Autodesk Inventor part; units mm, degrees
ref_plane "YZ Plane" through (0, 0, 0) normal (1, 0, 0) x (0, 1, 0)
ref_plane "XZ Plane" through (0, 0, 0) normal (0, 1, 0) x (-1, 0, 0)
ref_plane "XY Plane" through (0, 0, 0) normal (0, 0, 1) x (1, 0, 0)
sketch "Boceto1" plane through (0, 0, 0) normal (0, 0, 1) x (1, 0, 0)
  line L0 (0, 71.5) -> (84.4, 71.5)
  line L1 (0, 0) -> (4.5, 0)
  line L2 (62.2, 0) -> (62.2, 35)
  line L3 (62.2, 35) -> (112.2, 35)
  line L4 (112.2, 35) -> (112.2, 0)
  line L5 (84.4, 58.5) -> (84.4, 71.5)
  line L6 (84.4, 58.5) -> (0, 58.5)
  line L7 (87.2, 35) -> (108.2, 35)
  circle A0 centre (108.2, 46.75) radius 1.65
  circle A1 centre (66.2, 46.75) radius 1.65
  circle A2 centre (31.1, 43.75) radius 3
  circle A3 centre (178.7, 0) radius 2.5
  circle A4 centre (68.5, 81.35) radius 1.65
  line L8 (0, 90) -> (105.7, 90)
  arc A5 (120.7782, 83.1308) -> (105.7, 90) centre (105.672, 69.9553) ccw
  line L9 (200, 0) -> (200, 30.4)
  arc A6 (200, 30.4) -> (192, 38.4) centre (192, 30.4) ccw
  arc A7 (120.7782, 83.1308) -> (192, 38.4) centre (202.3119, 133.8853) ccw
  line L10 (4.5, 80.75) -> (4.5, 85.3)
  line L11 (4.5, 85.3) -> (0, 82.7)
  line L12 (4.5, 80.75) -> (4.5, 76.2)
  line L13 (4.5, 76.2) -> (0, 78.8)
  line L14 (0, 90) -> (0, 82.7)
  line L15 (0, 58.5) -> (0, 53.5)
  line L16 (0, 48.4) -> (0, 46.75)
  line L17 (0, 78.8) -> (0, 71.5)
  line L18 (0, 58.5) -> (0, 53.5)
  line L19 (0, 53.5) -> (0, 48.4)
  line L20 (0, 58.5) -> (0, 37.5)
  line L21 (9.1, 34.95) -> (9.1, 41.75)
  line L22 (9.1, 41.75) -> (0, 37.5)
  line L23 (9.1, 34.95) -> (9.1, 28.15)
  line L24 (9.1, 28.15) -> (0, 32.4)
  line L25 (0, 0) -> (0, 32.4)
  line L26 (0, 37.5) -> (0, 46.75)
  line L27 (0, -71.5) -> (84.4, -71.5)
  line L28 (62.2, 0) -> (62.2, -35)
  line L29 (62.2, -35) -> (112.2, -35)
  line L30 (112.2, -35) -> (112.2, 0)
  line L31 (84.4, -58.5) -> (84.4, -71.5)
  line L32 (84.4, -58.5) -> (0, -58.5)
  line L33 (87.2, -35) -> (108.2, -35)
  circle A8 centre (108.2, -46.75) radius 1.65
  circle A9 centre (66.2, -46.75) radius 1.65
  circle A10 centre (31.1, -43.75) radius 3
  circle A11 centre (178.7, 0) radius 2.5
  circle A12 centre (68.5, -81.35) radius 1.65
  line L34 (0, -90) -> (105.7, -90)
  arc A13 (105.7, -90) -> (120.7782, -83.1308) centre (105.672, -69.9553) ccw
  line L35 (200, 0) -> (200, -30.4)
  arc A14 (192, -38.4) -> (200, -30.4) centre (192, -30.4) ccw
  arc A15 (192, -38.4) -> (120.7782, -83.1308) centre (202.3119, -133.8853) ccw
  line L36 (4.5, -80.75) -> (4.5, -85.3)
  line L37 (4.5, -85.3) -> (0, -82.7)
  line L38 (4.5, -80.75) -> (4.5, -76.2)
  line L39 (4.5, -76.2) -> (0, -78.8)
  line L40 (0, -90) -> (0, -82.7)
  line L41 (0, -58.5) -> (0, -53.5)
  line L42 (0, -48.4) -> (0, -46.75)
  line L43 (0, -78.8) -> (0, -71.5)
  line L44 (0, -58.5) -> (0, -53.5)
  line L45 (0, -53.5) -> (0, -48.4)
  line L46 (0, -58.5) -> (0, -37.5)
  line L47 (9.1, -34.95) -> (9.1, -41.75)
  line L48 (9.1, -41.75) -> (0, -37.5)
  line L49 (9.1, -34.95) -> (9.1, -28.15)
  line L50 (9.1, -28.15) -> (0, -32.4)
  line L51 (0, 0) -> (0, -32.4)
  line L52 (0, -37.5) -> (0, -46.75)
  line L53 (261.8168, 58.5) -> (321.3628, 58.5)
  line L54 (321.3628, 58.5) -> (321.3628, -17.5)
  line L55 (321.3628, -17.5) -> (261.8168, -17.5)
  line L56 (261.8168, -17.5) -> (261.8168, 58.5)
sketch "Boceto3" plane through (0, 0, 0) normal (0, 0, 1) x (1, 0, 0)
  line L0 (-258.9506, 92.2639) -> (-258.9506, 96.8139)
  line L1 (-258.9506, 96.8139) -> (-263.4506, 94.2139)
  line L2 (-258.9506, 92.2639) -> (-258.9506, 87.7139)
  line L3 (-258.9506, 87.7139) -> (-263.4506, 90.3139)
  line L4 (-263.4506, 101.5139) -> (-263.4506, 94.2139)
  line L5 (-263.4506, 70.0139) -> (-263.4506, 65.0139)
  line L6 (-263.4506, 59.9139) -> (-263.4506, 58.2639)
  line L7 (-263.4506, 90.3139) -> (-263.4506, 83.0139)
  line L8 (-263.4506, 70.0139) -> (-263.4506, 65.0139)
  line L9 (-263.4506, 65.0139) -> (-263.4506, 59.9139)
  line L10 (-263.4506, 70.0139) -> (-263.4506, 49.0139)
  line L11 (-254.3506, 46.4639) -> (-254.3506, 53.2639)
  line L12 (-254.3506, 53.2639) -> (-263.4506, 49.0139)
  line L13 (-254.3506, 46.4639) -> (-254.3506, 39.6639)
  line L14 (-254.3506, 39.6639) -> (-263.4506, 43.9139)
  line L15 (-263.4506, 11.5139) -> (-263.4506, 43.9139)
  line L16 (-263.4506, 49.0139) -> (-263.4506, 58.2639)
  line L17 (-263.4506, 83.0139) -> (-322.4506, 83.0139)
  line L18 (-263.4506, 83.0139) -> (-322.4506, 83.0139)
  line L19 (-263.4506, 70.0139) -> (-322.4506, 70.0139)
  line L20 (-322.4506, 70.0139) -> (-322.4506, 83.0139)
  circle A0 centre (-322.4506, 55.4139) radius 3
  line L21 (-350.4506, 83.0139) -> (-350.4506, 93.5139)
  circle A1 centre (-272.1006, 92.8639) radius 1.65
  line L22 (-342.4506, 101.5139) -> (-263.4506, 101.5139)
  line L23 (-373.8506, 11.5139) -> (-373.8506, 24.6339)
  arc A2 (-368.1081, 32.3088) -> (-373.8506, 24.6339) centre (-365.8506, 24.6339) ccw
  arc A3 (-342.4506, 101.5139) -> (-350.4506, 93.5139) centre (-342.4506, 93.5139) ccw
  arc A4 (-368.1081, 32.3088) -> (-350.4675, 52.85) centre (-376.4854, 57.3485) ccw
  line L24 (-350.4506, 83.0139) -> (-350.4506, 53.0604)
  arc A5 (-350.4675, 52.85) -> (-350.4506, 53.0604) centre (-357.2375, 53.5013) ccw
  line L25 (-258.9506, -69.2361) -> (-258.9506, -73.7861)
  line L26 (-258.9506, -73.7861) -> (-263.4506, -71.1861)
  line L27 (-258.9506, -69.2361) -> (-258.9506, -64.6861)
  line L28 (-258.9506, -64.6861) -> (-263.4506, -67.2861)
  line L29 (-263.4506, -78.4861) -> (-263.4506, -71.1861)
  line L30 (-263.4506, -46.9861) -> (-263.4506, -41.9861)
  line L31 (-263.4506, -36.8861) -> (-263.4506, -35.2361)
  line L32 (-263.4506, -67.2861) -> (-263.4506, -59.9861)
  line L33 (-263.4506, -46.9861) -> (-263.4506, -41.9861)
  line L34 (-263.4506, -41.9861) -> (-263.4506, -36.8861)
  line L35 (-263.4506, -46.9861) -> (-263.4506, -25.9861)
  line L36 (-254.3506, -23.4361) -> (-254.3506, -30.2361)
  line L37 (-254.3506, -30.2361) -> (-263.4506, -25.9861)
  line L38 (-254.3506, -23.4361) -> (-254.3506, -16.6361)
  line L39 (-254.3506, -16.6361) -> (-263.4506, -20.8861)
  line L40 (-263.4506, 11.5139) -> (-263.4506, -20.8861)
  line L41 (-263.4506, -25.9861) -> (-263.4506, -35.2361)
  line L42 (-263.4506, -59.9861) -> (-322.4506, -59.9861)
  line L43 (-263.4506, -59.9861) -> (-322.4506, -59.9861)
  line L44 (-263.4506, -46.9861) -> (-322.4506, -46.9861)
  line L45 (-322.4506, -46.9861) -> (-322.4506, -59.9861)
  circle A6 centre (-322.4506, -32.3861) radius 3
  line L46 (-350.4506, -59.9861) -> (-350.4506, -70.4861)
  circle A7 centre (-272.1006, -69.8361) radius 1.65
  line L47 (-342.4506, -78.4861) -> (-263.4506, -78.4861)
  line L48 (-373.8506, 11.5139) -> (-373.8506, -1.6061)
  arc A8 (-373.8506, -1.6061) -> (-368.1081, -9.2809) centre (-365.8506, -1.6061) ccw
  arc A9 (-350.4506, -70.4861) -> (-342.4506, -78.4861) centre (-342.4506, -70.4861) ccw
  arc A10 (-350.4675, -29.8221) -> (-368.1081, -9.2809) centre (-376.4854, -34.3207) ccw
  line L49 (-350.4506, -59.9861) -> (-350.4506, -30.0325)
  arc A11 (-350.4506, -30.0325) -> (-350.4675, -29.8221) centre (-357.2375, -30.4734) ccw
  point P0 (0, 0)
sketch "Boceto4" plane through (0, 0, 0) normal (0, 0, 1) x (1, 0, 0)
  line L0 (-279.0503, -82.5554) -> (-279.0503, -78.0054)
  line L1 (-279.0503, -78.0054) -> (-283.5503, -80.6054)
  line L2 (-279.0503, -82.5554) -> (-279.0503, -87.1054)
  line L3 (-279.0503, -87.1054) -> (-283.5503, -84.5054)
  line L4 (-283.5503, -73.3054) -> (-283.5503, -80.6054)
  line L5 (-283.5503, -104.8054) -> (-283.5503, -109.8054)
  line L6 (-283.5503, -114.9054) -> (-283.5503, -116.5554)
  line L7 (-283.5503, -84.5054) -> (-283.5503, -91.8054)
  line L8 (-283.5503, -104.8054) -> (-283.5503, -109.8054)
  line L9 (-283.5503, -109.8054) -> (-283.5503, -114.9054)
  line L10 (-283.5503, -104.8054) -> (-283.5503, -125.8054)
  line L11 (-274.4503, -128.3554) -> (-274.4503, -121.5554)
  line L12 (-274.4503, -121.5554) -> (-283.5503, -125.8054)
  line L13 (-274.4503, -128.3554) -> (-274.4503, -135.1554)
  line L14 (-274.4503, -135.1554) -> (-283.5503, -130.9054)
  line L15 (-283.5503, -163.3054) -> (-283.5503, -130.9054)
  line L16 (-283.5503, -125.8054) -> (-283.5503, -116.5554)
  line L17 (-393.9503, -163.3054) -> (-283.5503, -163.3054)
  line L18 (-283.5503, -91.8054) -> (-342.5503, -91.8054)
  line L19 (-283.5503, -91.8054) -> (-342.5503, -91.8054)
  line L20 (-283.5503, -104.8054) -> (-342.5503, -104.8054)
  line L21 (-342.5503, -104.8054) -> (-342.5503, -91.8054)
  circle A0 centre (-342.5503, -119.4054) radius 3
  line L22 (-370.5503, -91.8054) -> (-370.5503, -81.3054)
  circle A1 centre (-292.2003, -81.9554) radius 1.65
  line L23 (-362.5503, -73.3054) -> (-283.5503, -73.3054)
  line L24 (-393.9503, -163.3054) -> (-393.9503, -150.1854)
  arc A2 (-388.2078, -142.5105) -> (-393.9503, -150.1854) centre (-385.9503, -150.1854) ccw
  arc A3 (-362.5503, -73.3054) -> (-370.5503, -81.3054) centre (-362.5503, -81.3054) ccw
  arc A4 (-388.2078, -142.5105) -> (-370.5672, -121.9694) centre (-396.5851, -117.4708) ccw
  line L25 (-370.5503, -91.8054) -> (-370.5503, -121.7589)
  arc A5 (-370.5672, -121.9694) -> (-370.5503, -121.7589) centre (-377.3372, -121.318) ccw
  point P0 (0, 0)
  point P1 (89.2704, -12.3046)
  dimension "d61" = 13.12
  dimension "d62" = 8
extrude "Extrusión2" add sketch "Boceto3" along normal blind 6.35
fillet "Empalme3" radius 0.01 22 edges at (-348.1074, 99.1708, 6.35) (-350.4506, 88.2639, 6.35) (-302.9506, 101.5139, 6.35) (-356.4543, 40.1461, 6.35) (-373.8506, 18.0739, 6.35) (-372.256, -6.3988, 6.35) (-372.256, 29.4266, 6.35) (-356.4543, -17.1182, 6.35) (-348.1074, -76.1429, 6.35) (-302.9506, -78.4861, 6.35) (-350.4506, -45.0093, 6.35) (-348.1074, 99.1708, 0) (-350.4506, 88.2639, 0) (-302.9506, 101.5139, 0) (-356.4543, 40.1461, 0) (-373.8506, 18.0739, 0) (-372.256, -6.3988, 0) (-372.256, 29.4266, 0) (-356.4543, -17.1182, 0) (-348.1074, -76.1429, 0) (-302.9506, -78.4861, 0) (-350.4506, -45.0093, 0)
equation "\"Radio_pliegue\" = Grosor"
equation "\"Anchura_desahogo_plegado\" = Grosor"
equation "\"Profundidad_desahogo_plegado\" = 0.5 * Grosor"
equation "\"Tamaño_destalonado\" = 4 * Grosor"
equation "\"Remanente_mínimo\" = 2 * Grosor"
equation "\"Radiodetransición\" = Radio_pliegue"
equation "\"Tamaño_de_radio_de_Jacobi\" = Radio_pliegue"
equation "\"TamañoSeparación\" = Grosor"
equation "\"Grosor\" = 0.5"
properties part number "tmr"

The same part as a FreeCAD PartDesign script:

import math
import FreeCAD as App
import Part
import Sketcher

V = App.Vector


def edges_at(feature, points):
    """Names of the edges that pass closest to the given points."""
    edges = feature.Shape.Edges
    near = lambda p: min(range(len(edges)), key=lambda i: edges[i].distToShape(Part.Vertex(*p))[0])
    return sorted({f"Edge{near(p) + 1}" for p in points})

doc = App.newDocument("Part")
body = doc.addObject("PartDesign::Body", "Body")

# Sketch on XY plane
sketch1 = body.newObject("Sketcher::SketchObject", "Sketch")
sketch1.AttachmentSupport = (doc.getObject("XY_Plane"), [""])
sketch1.MapMode = "FlatFace"
sketch1.addGeometry([
    Part.LineSegment(V(-258.9506, 87.7139, 0), V(-258.9506, 96.8139, 0)),  # 0
    Part.LineSegment(V(-258.9506, 96.8139, 0), V(-263.4506, 94.2139, 0)),  # 1
    Part.LineSegment(V(-263.4506, 94.2139, 0), V(-263.4506, 101.5139, 0)),  # 2
    Part.LineSegment(V(-263.4506, 101.5139, 0), V(-342.4506, 101.5139, 0)),  # 3
    Part.ArcOfCircle(Part.Circle(V(-342.4506, 93.5139, 0), V(0, 0, 1), 8), math.radians(90), math.radians(180)),  # 4
    Part.LineSegment(V(-350.4506, 93.5139, 0), V(-350.4506, 53.0604, 0)),  # 5
    Part.ArcOfCircle(Part.Circle(V(-357.034748, 53.483381, 0), V(0, 0, 1), 6.597721), math.radians(-5.508878), math.radians(-3.675764)),  # 6
    Part.ArcOfCircle(Part.Circle(V(-376.4854, 57.3485, 0), V(0, 0, 1), 26.403896), math.radians(-71.501783), math.radians(-9.809469)),  # 7
    Part.ArcOfCircle(Part.Circle(V(-365.8506, 24.6339, 0), V(0, 0, 1), 8.000025), math.radians(106.390753), math.radians(180)),  # 8
    Part.LineSegment(V(-373.8506, 24.6339, 0), V(-373.8506, -1.6061, 0)),  # 9
    Part.ArcOfCircle(Part.Circle(V(-365.8506, -1.6061, 0), V(0, 0, 1), 8), math.radians(180), math.radians(253.609045)),  # 10
    Part.ArcOfCircle(Part.Circle(V(-376.4854, -34.3207, 0), V(0, 0, 1), 26.403949), math.radians(9.809683), math.radians(71.501852)),  # 11
    Part.ArcOfCircle(Part.Circle(V(-357.453428, -30.489111, 0), V(0, 0, 1), 7.017698), math.radians(3.73062), math.radians(5.454022)),  # 12
    Part.LineSegment(V(-350.4506, -30.0325, 0), V(-350.4506, -70.4861, 0)),  # 13
    Part.ArcOfCircle(Part.Circle(V(-342.4506, -70.4861, 0), V(0, 0, 1), 8), math.radians(180), math.radians(270)),  # 14
    Part.LineSegment(V(-342.4506, -78.4861, 0), V(-263.4506, -78.4861, 0)),  # 15
    Part.LineSegment(V(-263.4506, -78.4861, 0), V(-263.4506, -71.1861, 0)),  # 16
    Part.LineSegment(V(-263.4506, -71.1861, 0), V(-258.9506, -73.7861, 0)),  # 17
    Part.LineSegment(V(-258.9506, -73.7861, 0), V(-258.9506, -64.6861, 0)),  # 18
    Part.LineSegment(V(-258.9506, -64.6861, 0), V(-263.4506, -67.2861, 0)),  # 19
    Part.LineSegment(V(-263.4506, -67.2861, 0), V(-263.4506, -59.9861, 0)),  # 20
    Part.LineSegment(V(-263.4506, -59.9861, 0), V(-322.4506, -59.9861, 0)),  # 21
    Part.LineSegment(V(-322.4506, -59.9861, 0), V(-322.4506, -46.9861, 0)),  # 22
    Part.LineSegment(V(-322.4506, -46.9861, 0), V(-263.4506, -46.9861, 0)),  # 23
    Part.LineSegment(V(-263.4506, -46.9861, 0), V(-263.4506, -25.9861, 0)),  # 24
    Part.LineSegment(V(-263.4506, -25.9861, 0), V(-254.3506, -30.2361, 0)),  # 25
    Part.LineSegment(V(-254.3506, -30.2361, 0), V(-254.3506, -16.6361, 0)),  # 26
    Part.LineSegment(V(-254.3506, -16.6361, 0), V(-263.4506, -20.8861, 0)),  # 27
    Part.LineSegment(V(-263.4506, -20.8861, 0), V(-263.4506, 43.9139, 0)),  # 28
    Part.LineSegment(V(-263.4506, 43.9139, 0), V(-254.3506, 39.6639, 0)),  # 29
    Part.LineSegment(V(-254.3506, 39.6639, 0), V(-254.3506, 53.2639, 0)),  # 30
    Part.LineSegment(V(-254.3506, 53.2639, 0), V(-263.4506, 49.0139, 0)),  # 31
    Part.LineSegment(V(-263.4506, 49.0139, 0), V(-263.4506, 70.0139, 0)),  # 32
    Part.LineSegment(V(-263.4506, 70.0139, 0), V(-322.4506, 70.0139, 0)),  # 33
    Part.LineSegment(V(-322.4506, 70.0139, 0), V(-322.4506, 83.0139, 0)),  # 34
    Part.LineSegment(V(-322.4506, 83.0139, 0), V(-263.4506, 83.0139, 0)),  # 35
    Part.LineSegment(V(-263.4506, 83.0139, 0), V(-263.4506, 90.3139, 0)),  # 36
    Part.LineSegment(V(-263.4506, 90.3139, 0), V(-258.9506, 87.7139, 0)),  # 37
    Part.Circle(V(-322.4506, -32.3861, 0), V(0, 0, 1), 3),  # 38
    Part.Circle(V(-272.1006, -69.8361, 0), V(0, 0, 1), 1.65),  # 39
    Part.Circle(V(-322.4506, 55.4139, 0), V(0, 0, 1), 3),  # 40
    Part.Circle(V(-272.1006, 92.8639, 0), V(0, 0, 1), 1.65),  # 41
], False)
sketch1.addConstraint([
    Sketcher.Constraint("Coincident", 0, 2, 1, 1),
    Sketcher.Constraint("Coincident", 1, 2, 2, 1),
    Sketcher.Constraint("Coincident", 2, 2, 3, 1),
    Sketcher.Constraint("Tangent", 3, 2, 4, 1),
    Sketcher.Constraint("Tangent", 4, 2, 5, 1),
    Sketcher.Constraint("Coincident", 5, 2, 6, 2),
    Sketcher.Constraint("Coincident", 6, 1, 7, 2),
    Sketcher.Constraint("Coincident", 7, 1, 8, 1),
    Sketcher.Constraint("Tangent", 8, 2, 9, 1),
    Sketcher.Constraint("Tangent", 9, 2, 10, 1),
    Sketcher.Constraint("Coincident", 10, 2, 11, 2),
    Sketcher.Constraint("Coincident", 11, 1, 12, 2),
    Sketcher.Constraint("Coincident", 12, 1, 13, 1),
    Sketcher.Constraint("Tangent", 13, 2, 14, 1),
    Sketcher.Constraint("Tangent", 14, 2, 15, 1),
    Sketcher.Constraint("Coincident", 15, 2, 16, 1),
    Sketcher.Constraint("Coincident", 16, 2, 17, 1),
    Sketcher.Constraint("Coincident", 17, 2, 18, 1),
    Sketcher.Constraint("Coincident", 18, 2, 19, 1),
    Sketcher.Constraint("Coincident", 19, 2, 20, 1),
    Sketcher.Constraint("Coincident", 20, 2, 21, 1),
    Sketcher.Constraint("Coincident", 21, 2, 22, 1),
    Sketcher.Constraint("Coincident", 22, 2, 23, 1),
    Sketcher.Constraint("Coincident", 23, 2, 24, 1),
    Sketcher.Constraint("Coincident", 24, 2, 25, 1),
    Sketcher.Constraint("Coincident", 25, 2, 26, 1),
    Sketcher.Constraint("Coincident", 26, 2, 27, 1),
    Sketcher.Constraint("Coincident", 27, 2, 28, 1),
    Sketcher.Constraint("Coincident", 28, 2, 29, 1),
    Sketcher.Constraint("Coincident", 29, 2, 30, 1),
    Sketcher.Constraint("Coincident", 30, 2, 31, 1),
    Sketcher.Constraint("Coincident", 31, 2, 32, 1),
    Sketcher.Constraint("Coincident", 32, 2, 33, 1),
    Sketcher.Constraint("Coincident", 33, 2, 34, 1),
    Sketcher.Constraint("Coincident", 34, 2, 35, 1),
    Sketcher.Constraint("Coincident", 35, 2, 36, 1),
    Sketcher.Constraint("Coincident", 36, 2, 37, 1),
    Sketcher.Constraint("Coincident", 37, 2, 0, 1),
    Sketcher.Constraint("Vertical", 0),
    Sketcher.Constraint("Vertical", 2),
    Sketcher.Constraint("Horizontal", 3),
    Sketcher.Constraint("Vertical", 5),
    Sketcher.Constraint("Vertical", 9),
    Sketcher.Constraint("Vertical", 13),
    Sketcher.Constraint("Horizontal", 15),
    Sketcher.Constraint("Vertical", 16),
    Sketcher.Constraint("Vertical", 18),
    Sketcher.Constraint("Vertical", 20),
    Sketcher.Constraint("Horizontal", 21),
    Sketcher.Constraint("Vertical", 22),
    Sketcher.Constraint("Horizontal", 23),
    Sketcher.Constraint("Vertical", 24),
    Sketcher.Constraint("Vertical", 26),
    Sketcher.Constraint("Vertical", 28),
    Sketcher.Constraint("Vertical", 30),
    Sketcher.Constraint("Vertical", 32),
    Sketcher.Constraint("Horizontal", 33),
    Sketcher.Constraint("Vertical", 34),
    Sketcher.Constraint("Horizontal", 35),
    Sketcher.Constraint("Vertical", 36),
    Sketcher.Constraint("Equal", 4, 8),
    Sketcher.Constraint("Equal", 8, 10),
    Sketcher.Constraint("Equal", 7, 11),
    Sketcher.Constraint("Equal", 10, 14),
    Sketcher.Constraint("Equal", 38, 40),
    Sketcher.Constraint("Equal", 39, 41),
    Sketcher.Constraint("Parallel", 1, 19),
    Sketcher.Constraint("Parallel", 25, 29),
    Sketcher.Constraint("Parallel", 27, 31),
    Sketcher.Constraint("Parallel", 17, 37),
    Sketcher.Constraint("Vertical", 7, 3, 11, 3),
    Sketcher.Constraint("Vertical", 4, 3, 14, 3),
    Sketcher.Constraint("Vertical", 38, 3, 40, 3),
    Sketcher.Constraint("Vertical", 39, 3, 41, 3),
    Sketcher.Constraint("Vertical", 7, 1, 10, 2),
    Sketcher.Constraint("Vertical", 6, 1, 11, 1),
    Sketcher.Constraint("Vertical", 2, 2, 15, 2),
    Sketcher.Constraint("Vertical", 0, 2, 17, 2),
    Sketcher.Constraint("Vertical", 16, 2, 19, 2),
    Sketcher.Constraint("Vertical", 40, 3, 21, 2),
    Sketcher.Constraint("Vertical", 20, 2, 23, 2),
    Sketcher.Constraint("Vertical", 24, 2, 27, 2),
    Sketcher.Constraint("Vertical", 26, 2, 29, 2),
    Sketcher.Constraint("Vertical", 28, 2, 31, 2),
    Sketcher.Constraint("Vertical", 22, 2, 33, 2),
    Sketcher.Constraint("Vertical", 32, 2, 35, 2),
    Sketcher.Constraint("Equal", 5, 13),
    Sketcher.Constraint("Equal", 2, 16),
    Sketcher.Constraint("Equal", 0, 18),
    Sketcher.Constraint("Equal", 16, 20),
    Sketcher.Constraint("Equal", 26, 30),
    Sketcher.Constraint("Equal", 24, 32),
    Sketcher.Constraint("Equal", 22, 34),
    Sketcher.Constraint("Equal", 20, 36),
    Sketcher.Constraint("Equal", 1, 17),
    Sketcher.Constraint("Equal", 25, 27),
    Sketcher.Constraint("Diameter", 38, 6.0),
    Sketcher.Constraint("Radius", 4, 8.0),
    Sketcher.Constraint("Diameter", 39, 3.3),
    Sketcher.Constraint("DistanceX", 3, 2, 3, 1, 79.0),
    Sketcher.Constraint("DistanceX", 21, 2, 21, 1, 59.0),
    Sketcher.Constraint("DistanceY", 22, 1, 22, 2, 13.0),
    Sketcher.Constraint("DistanceY", 24, 1, 24, 2, 21.0),
    Sketcher.Constraint("DistanceY", 0, 1, 0, 2, 9.1),
    Sketcher.Constraint("DistanceY", 2, 1, 2, 2, 7.3),
    Sketcher.Constraint("DistanceY", 26, 1, 26, 2, 13.6),
    Sketcher.Constraint("DistanceY", 28, 1, 28, 2, 64.8),
    Sketcher.Constraint("Radius", 7, 26.404),
    Sketcher.Constraint("DistanceY", 9, 2, 9, 1, 26.24),
    Sketcher.Constraint("Radius", 6, 6.5977),
    Sketcher.Constraint("Radius", 12, 7.0177),
    Sketcher.Constraint("DistanceX", 8, 3, 4, 3, 23.4),
    Sketcher.Constraint("DistanceY", 14, 3, 38, 3, 38.1),
    Sketcher.Constraint("DistanceY", 40, 3, 4, 3, 38.1),
    Sketcher.Constraint("DistanceX", 40, 3, 0, 2, 63.5),
    Sketcher.Constraint("DistanceY", 40, 3, 0, 2, 41.4),
    Sketcher.Constraint("DistanceX", 24, 2, 25, 2, 9.1),
    Sketcher.Constraint("DistanceY", 24, 2, 27, 2, 5.1),
    Sketcher.Constraint("DistanceY", 29, 2, 41, 3, 53.2),
    Sketcher.Constraint("DistanceY", -1, 1, 6, 1, 52.85),
    Sketcher.Constraint("DistanceY", 8, 3, 4, 3, 68.88),
    Sketcher.Constraint("DistanceX", 38, 3, 39, 3, 50.35),
    Sketcher.Constraint("DistanceY", 39, 3, 38, 3, 37.45),
    Sketcher.Constraint("DistanceY", 5, 2, 5, 1, 40.4535),
    Sketcher.Constraint("DistanceY", -1, 1, 4, 3, 93.514),
    Sketcher.Constraint("DistanceY", 12, 3, -1, 1, 30.489),
    Sketcher.Constraint("DistanceX", 7, 1, -1, 1, 368.108),
    Sketcher.Constraint("DistanceY", 10, 2, -1, 1, 9.281),
])
pad1 = body.newObject("PartDesign::Pad", "Pad")
pad1.Profile = sketch1
pad1.Length = 6.35
doc.recompute()

fillet = body.newObject("PartDesign::Fillet", "Fillet")
fillet.Base = (pad1, edges_at(pad1, [
    (-348.107, 99.171, 6.35),
    (-350.451, 88.264, 6.35),
    (-302.951, 101.514, 6.35),
    (-356.454, 40.146, 6.35),
    (-373.851, 18.074, 6.35),
    (-372.256, -6.399, 6.35),
    (-372.256, 29.427, 6.35),
    (-356.454, -17.118, 6.35),
    (-348.107, -76.143, 6.35),
    (-302.951, -78.486, 6.35),
    (-350.451, -45.009, 6.35),
    (-348.107, 99.171, 0),
    (-350.451, 88.264, 0),
    (-302.951, 101.514, 0),
    (-356.454, 40.146, 0),
    (-373.851, 18.074, 0),
    (-372.256, -6.399, 0),
    (-372.256, 29.427, 0),
    (-356.454, -17.118, 0),
    (-348.107, -76.143, 0),
    (-302.951, -78.486, 0),
    (-350.451, -45.009, 0),
]))
fillet.Radius = 0.01

doc.recompute()
